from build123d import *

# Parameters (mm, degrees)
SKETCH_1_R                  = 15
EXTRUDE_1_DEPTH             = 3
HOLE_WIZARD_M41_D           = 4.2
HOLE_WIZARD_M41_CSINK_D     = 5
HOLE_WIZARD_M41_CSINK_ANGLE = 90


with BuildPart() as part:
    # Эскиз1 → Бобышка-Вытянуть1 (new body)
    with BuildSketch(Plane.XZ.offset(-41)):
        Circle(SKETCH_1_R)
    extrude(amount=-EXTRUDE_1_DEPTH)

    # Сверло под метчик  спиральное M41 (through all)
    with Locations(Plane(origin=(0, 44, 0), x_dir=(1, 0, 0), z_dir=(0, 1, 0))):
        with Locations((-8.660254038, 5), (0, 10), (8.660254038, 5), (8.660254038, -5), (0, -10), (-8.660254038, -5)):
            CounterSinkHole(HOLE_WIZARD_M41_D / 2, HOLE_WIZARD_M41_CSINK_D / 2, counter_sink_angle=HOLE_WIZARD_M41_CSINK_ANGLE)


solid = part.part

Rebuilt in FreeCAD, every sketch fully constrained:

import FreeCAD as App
import Part
import Sketcher
from FreeCAD import Vector
Q = App.Units.Quantity

doc = App.newDocument("Part")
params = doc.addObject("Spreadsheet::Sheet", "Params")
for row, (alias, value) in enumerate([
    ("sketch1_diameter", "30 mm"),
    ("pad1_length", "3 mm"),
    ("sketch2_diameter", "4.2 mm"),
    ("hole_diameter", "4.2 mm"),
    ("hole_csink_diameter", "5 mm"),
], start=1):
    params.set(f"A{row}", alias)
    params.set(f"B{row}", "=" + value)
    params.setAlias(f"B{row}", alias)

body = doc.addObject("PartDesign::Body", "Body")

# Sketch on XZ plane
sketch1 = body.newObject("Sketcher::SketchObject", "Sketch")
sketch1.AttachmentSupport = (doc.getObject("XZ_Plane"), [""])
sketch1.MapMode = "FlatFace"
sketch1.AttachmentOffset = App.Placement(Vector(0, 0, -41), App.Rotation())
sketch1.addGeometry(Part.Circle(Vector(0, 0, 0), Vector(0, 0, 1), 15), False)
sketch1.addConstraint([
    Sketcher.Constraint("Coincident", 0, 3, -1, 1),
    Sketcher.Constraint("Diameter", 0, Q("30 mm")),
])
sketch1.setExpression("Constraints[1]", "Params.sketch1_diameter")
pad1 = body.newObject("PartDesign::Pad", "Pad")
pad1.Profile = sketch1
pad1.setExpression("Length", "Params.pad1_length")
pad1.Reversed = True

# Sketch on XZ plane
sketch2 = body.newObject("Sketcher::SketchObject", "Sketch001")
sketch2.AttachmentSupport = (doc.getObject("XZ_Plane"), [""])
sketch2.MapMode = "FlatFace"
sketch2.AttachmentOffset = App.Placement(Vector(0, 0, -44), App.Rotation())
sketch2.addGeometry([
    Part.Circle(Vector(-8.7, -5, 0), Vector(0, 0, 1), 2.1),  # 0
    Part.Circle(Vector(0, -10, 0), Vector(0, 0, 1), 2.1),  # 1
    Part.Circle(Vector(8.7, -5, 0), Vector(0, 0, 1), 2.1),  # 2
    Part.Circle(Vector(8.7, 5, 0), Vector(0, 0, 1), 2.1),  # 3
    Part.Circle(Vector(0, 10, 0), Vector(0, 0, 1), 2.1),  # 4
    Part.Circle(Vector(-8.7, 5, 0), Vector(0, 0, 1), 2.1),  # 5
], False)
sketch2.addConstraint([
    Sketcher.Constraint("Equal", 0, 1),
    Sketcher.Constraint("Equal", 1, 2),
    Sketcher.Constraint("Equal", 2, 3),
    Sketcher.Constraint("Equal", 3, 4),
    Sketcher.Constraint("Equal", 4, 5),
    Sketcher.Constraint("Symmetric", 0, 3, 3, 3, -1, 1),
    Sketcher.Constraint("Symmetric", 1, 3, 4, 3, -1, 1),
    Sketcher.Constraint("Symmetric", 2, 3, 5, 3, -1, 1),
    Sketcher.Constraint("Symmetric", 0, 3, 2, 3, -2),
    Sketcher.Constraint("PointOnObject", 1, 3, -2),
    Sketcher.Constraint("Diameter", 0, Q("4.2 mm")),
    Sketcher.Constraint("DistanceY", 0, 3, -1, 1, Q("5 mm")),
    Sketcher.Constraint("DistanceY", 1, 3, -1, 1, Q("10 mm")),
    Sketcher.Constraint("DistanceX", 0, 3, 2, 3, Q("17.320508 mm")),
])
sketch2.setExpression("Constraints[10]", "Params.sketch2_diameter")
doc.recompute()
hole = body.newObject("PartDesign::Hole", "Hole")
hole.Profile = sketch2
hole.ThreadType = "None"
hole.setExpression("Diameter", "Params.hole_diameter")
hole.DepthType = "ThroughAll"
hole.HoleCutType = "Countersink"
hole.setExpression("HoleCutDiameter", "Params.hole_csink_diameter")
hole.HoleCutCountersinkAngle = 90
hole.Reversed = True

doc.recompute()
